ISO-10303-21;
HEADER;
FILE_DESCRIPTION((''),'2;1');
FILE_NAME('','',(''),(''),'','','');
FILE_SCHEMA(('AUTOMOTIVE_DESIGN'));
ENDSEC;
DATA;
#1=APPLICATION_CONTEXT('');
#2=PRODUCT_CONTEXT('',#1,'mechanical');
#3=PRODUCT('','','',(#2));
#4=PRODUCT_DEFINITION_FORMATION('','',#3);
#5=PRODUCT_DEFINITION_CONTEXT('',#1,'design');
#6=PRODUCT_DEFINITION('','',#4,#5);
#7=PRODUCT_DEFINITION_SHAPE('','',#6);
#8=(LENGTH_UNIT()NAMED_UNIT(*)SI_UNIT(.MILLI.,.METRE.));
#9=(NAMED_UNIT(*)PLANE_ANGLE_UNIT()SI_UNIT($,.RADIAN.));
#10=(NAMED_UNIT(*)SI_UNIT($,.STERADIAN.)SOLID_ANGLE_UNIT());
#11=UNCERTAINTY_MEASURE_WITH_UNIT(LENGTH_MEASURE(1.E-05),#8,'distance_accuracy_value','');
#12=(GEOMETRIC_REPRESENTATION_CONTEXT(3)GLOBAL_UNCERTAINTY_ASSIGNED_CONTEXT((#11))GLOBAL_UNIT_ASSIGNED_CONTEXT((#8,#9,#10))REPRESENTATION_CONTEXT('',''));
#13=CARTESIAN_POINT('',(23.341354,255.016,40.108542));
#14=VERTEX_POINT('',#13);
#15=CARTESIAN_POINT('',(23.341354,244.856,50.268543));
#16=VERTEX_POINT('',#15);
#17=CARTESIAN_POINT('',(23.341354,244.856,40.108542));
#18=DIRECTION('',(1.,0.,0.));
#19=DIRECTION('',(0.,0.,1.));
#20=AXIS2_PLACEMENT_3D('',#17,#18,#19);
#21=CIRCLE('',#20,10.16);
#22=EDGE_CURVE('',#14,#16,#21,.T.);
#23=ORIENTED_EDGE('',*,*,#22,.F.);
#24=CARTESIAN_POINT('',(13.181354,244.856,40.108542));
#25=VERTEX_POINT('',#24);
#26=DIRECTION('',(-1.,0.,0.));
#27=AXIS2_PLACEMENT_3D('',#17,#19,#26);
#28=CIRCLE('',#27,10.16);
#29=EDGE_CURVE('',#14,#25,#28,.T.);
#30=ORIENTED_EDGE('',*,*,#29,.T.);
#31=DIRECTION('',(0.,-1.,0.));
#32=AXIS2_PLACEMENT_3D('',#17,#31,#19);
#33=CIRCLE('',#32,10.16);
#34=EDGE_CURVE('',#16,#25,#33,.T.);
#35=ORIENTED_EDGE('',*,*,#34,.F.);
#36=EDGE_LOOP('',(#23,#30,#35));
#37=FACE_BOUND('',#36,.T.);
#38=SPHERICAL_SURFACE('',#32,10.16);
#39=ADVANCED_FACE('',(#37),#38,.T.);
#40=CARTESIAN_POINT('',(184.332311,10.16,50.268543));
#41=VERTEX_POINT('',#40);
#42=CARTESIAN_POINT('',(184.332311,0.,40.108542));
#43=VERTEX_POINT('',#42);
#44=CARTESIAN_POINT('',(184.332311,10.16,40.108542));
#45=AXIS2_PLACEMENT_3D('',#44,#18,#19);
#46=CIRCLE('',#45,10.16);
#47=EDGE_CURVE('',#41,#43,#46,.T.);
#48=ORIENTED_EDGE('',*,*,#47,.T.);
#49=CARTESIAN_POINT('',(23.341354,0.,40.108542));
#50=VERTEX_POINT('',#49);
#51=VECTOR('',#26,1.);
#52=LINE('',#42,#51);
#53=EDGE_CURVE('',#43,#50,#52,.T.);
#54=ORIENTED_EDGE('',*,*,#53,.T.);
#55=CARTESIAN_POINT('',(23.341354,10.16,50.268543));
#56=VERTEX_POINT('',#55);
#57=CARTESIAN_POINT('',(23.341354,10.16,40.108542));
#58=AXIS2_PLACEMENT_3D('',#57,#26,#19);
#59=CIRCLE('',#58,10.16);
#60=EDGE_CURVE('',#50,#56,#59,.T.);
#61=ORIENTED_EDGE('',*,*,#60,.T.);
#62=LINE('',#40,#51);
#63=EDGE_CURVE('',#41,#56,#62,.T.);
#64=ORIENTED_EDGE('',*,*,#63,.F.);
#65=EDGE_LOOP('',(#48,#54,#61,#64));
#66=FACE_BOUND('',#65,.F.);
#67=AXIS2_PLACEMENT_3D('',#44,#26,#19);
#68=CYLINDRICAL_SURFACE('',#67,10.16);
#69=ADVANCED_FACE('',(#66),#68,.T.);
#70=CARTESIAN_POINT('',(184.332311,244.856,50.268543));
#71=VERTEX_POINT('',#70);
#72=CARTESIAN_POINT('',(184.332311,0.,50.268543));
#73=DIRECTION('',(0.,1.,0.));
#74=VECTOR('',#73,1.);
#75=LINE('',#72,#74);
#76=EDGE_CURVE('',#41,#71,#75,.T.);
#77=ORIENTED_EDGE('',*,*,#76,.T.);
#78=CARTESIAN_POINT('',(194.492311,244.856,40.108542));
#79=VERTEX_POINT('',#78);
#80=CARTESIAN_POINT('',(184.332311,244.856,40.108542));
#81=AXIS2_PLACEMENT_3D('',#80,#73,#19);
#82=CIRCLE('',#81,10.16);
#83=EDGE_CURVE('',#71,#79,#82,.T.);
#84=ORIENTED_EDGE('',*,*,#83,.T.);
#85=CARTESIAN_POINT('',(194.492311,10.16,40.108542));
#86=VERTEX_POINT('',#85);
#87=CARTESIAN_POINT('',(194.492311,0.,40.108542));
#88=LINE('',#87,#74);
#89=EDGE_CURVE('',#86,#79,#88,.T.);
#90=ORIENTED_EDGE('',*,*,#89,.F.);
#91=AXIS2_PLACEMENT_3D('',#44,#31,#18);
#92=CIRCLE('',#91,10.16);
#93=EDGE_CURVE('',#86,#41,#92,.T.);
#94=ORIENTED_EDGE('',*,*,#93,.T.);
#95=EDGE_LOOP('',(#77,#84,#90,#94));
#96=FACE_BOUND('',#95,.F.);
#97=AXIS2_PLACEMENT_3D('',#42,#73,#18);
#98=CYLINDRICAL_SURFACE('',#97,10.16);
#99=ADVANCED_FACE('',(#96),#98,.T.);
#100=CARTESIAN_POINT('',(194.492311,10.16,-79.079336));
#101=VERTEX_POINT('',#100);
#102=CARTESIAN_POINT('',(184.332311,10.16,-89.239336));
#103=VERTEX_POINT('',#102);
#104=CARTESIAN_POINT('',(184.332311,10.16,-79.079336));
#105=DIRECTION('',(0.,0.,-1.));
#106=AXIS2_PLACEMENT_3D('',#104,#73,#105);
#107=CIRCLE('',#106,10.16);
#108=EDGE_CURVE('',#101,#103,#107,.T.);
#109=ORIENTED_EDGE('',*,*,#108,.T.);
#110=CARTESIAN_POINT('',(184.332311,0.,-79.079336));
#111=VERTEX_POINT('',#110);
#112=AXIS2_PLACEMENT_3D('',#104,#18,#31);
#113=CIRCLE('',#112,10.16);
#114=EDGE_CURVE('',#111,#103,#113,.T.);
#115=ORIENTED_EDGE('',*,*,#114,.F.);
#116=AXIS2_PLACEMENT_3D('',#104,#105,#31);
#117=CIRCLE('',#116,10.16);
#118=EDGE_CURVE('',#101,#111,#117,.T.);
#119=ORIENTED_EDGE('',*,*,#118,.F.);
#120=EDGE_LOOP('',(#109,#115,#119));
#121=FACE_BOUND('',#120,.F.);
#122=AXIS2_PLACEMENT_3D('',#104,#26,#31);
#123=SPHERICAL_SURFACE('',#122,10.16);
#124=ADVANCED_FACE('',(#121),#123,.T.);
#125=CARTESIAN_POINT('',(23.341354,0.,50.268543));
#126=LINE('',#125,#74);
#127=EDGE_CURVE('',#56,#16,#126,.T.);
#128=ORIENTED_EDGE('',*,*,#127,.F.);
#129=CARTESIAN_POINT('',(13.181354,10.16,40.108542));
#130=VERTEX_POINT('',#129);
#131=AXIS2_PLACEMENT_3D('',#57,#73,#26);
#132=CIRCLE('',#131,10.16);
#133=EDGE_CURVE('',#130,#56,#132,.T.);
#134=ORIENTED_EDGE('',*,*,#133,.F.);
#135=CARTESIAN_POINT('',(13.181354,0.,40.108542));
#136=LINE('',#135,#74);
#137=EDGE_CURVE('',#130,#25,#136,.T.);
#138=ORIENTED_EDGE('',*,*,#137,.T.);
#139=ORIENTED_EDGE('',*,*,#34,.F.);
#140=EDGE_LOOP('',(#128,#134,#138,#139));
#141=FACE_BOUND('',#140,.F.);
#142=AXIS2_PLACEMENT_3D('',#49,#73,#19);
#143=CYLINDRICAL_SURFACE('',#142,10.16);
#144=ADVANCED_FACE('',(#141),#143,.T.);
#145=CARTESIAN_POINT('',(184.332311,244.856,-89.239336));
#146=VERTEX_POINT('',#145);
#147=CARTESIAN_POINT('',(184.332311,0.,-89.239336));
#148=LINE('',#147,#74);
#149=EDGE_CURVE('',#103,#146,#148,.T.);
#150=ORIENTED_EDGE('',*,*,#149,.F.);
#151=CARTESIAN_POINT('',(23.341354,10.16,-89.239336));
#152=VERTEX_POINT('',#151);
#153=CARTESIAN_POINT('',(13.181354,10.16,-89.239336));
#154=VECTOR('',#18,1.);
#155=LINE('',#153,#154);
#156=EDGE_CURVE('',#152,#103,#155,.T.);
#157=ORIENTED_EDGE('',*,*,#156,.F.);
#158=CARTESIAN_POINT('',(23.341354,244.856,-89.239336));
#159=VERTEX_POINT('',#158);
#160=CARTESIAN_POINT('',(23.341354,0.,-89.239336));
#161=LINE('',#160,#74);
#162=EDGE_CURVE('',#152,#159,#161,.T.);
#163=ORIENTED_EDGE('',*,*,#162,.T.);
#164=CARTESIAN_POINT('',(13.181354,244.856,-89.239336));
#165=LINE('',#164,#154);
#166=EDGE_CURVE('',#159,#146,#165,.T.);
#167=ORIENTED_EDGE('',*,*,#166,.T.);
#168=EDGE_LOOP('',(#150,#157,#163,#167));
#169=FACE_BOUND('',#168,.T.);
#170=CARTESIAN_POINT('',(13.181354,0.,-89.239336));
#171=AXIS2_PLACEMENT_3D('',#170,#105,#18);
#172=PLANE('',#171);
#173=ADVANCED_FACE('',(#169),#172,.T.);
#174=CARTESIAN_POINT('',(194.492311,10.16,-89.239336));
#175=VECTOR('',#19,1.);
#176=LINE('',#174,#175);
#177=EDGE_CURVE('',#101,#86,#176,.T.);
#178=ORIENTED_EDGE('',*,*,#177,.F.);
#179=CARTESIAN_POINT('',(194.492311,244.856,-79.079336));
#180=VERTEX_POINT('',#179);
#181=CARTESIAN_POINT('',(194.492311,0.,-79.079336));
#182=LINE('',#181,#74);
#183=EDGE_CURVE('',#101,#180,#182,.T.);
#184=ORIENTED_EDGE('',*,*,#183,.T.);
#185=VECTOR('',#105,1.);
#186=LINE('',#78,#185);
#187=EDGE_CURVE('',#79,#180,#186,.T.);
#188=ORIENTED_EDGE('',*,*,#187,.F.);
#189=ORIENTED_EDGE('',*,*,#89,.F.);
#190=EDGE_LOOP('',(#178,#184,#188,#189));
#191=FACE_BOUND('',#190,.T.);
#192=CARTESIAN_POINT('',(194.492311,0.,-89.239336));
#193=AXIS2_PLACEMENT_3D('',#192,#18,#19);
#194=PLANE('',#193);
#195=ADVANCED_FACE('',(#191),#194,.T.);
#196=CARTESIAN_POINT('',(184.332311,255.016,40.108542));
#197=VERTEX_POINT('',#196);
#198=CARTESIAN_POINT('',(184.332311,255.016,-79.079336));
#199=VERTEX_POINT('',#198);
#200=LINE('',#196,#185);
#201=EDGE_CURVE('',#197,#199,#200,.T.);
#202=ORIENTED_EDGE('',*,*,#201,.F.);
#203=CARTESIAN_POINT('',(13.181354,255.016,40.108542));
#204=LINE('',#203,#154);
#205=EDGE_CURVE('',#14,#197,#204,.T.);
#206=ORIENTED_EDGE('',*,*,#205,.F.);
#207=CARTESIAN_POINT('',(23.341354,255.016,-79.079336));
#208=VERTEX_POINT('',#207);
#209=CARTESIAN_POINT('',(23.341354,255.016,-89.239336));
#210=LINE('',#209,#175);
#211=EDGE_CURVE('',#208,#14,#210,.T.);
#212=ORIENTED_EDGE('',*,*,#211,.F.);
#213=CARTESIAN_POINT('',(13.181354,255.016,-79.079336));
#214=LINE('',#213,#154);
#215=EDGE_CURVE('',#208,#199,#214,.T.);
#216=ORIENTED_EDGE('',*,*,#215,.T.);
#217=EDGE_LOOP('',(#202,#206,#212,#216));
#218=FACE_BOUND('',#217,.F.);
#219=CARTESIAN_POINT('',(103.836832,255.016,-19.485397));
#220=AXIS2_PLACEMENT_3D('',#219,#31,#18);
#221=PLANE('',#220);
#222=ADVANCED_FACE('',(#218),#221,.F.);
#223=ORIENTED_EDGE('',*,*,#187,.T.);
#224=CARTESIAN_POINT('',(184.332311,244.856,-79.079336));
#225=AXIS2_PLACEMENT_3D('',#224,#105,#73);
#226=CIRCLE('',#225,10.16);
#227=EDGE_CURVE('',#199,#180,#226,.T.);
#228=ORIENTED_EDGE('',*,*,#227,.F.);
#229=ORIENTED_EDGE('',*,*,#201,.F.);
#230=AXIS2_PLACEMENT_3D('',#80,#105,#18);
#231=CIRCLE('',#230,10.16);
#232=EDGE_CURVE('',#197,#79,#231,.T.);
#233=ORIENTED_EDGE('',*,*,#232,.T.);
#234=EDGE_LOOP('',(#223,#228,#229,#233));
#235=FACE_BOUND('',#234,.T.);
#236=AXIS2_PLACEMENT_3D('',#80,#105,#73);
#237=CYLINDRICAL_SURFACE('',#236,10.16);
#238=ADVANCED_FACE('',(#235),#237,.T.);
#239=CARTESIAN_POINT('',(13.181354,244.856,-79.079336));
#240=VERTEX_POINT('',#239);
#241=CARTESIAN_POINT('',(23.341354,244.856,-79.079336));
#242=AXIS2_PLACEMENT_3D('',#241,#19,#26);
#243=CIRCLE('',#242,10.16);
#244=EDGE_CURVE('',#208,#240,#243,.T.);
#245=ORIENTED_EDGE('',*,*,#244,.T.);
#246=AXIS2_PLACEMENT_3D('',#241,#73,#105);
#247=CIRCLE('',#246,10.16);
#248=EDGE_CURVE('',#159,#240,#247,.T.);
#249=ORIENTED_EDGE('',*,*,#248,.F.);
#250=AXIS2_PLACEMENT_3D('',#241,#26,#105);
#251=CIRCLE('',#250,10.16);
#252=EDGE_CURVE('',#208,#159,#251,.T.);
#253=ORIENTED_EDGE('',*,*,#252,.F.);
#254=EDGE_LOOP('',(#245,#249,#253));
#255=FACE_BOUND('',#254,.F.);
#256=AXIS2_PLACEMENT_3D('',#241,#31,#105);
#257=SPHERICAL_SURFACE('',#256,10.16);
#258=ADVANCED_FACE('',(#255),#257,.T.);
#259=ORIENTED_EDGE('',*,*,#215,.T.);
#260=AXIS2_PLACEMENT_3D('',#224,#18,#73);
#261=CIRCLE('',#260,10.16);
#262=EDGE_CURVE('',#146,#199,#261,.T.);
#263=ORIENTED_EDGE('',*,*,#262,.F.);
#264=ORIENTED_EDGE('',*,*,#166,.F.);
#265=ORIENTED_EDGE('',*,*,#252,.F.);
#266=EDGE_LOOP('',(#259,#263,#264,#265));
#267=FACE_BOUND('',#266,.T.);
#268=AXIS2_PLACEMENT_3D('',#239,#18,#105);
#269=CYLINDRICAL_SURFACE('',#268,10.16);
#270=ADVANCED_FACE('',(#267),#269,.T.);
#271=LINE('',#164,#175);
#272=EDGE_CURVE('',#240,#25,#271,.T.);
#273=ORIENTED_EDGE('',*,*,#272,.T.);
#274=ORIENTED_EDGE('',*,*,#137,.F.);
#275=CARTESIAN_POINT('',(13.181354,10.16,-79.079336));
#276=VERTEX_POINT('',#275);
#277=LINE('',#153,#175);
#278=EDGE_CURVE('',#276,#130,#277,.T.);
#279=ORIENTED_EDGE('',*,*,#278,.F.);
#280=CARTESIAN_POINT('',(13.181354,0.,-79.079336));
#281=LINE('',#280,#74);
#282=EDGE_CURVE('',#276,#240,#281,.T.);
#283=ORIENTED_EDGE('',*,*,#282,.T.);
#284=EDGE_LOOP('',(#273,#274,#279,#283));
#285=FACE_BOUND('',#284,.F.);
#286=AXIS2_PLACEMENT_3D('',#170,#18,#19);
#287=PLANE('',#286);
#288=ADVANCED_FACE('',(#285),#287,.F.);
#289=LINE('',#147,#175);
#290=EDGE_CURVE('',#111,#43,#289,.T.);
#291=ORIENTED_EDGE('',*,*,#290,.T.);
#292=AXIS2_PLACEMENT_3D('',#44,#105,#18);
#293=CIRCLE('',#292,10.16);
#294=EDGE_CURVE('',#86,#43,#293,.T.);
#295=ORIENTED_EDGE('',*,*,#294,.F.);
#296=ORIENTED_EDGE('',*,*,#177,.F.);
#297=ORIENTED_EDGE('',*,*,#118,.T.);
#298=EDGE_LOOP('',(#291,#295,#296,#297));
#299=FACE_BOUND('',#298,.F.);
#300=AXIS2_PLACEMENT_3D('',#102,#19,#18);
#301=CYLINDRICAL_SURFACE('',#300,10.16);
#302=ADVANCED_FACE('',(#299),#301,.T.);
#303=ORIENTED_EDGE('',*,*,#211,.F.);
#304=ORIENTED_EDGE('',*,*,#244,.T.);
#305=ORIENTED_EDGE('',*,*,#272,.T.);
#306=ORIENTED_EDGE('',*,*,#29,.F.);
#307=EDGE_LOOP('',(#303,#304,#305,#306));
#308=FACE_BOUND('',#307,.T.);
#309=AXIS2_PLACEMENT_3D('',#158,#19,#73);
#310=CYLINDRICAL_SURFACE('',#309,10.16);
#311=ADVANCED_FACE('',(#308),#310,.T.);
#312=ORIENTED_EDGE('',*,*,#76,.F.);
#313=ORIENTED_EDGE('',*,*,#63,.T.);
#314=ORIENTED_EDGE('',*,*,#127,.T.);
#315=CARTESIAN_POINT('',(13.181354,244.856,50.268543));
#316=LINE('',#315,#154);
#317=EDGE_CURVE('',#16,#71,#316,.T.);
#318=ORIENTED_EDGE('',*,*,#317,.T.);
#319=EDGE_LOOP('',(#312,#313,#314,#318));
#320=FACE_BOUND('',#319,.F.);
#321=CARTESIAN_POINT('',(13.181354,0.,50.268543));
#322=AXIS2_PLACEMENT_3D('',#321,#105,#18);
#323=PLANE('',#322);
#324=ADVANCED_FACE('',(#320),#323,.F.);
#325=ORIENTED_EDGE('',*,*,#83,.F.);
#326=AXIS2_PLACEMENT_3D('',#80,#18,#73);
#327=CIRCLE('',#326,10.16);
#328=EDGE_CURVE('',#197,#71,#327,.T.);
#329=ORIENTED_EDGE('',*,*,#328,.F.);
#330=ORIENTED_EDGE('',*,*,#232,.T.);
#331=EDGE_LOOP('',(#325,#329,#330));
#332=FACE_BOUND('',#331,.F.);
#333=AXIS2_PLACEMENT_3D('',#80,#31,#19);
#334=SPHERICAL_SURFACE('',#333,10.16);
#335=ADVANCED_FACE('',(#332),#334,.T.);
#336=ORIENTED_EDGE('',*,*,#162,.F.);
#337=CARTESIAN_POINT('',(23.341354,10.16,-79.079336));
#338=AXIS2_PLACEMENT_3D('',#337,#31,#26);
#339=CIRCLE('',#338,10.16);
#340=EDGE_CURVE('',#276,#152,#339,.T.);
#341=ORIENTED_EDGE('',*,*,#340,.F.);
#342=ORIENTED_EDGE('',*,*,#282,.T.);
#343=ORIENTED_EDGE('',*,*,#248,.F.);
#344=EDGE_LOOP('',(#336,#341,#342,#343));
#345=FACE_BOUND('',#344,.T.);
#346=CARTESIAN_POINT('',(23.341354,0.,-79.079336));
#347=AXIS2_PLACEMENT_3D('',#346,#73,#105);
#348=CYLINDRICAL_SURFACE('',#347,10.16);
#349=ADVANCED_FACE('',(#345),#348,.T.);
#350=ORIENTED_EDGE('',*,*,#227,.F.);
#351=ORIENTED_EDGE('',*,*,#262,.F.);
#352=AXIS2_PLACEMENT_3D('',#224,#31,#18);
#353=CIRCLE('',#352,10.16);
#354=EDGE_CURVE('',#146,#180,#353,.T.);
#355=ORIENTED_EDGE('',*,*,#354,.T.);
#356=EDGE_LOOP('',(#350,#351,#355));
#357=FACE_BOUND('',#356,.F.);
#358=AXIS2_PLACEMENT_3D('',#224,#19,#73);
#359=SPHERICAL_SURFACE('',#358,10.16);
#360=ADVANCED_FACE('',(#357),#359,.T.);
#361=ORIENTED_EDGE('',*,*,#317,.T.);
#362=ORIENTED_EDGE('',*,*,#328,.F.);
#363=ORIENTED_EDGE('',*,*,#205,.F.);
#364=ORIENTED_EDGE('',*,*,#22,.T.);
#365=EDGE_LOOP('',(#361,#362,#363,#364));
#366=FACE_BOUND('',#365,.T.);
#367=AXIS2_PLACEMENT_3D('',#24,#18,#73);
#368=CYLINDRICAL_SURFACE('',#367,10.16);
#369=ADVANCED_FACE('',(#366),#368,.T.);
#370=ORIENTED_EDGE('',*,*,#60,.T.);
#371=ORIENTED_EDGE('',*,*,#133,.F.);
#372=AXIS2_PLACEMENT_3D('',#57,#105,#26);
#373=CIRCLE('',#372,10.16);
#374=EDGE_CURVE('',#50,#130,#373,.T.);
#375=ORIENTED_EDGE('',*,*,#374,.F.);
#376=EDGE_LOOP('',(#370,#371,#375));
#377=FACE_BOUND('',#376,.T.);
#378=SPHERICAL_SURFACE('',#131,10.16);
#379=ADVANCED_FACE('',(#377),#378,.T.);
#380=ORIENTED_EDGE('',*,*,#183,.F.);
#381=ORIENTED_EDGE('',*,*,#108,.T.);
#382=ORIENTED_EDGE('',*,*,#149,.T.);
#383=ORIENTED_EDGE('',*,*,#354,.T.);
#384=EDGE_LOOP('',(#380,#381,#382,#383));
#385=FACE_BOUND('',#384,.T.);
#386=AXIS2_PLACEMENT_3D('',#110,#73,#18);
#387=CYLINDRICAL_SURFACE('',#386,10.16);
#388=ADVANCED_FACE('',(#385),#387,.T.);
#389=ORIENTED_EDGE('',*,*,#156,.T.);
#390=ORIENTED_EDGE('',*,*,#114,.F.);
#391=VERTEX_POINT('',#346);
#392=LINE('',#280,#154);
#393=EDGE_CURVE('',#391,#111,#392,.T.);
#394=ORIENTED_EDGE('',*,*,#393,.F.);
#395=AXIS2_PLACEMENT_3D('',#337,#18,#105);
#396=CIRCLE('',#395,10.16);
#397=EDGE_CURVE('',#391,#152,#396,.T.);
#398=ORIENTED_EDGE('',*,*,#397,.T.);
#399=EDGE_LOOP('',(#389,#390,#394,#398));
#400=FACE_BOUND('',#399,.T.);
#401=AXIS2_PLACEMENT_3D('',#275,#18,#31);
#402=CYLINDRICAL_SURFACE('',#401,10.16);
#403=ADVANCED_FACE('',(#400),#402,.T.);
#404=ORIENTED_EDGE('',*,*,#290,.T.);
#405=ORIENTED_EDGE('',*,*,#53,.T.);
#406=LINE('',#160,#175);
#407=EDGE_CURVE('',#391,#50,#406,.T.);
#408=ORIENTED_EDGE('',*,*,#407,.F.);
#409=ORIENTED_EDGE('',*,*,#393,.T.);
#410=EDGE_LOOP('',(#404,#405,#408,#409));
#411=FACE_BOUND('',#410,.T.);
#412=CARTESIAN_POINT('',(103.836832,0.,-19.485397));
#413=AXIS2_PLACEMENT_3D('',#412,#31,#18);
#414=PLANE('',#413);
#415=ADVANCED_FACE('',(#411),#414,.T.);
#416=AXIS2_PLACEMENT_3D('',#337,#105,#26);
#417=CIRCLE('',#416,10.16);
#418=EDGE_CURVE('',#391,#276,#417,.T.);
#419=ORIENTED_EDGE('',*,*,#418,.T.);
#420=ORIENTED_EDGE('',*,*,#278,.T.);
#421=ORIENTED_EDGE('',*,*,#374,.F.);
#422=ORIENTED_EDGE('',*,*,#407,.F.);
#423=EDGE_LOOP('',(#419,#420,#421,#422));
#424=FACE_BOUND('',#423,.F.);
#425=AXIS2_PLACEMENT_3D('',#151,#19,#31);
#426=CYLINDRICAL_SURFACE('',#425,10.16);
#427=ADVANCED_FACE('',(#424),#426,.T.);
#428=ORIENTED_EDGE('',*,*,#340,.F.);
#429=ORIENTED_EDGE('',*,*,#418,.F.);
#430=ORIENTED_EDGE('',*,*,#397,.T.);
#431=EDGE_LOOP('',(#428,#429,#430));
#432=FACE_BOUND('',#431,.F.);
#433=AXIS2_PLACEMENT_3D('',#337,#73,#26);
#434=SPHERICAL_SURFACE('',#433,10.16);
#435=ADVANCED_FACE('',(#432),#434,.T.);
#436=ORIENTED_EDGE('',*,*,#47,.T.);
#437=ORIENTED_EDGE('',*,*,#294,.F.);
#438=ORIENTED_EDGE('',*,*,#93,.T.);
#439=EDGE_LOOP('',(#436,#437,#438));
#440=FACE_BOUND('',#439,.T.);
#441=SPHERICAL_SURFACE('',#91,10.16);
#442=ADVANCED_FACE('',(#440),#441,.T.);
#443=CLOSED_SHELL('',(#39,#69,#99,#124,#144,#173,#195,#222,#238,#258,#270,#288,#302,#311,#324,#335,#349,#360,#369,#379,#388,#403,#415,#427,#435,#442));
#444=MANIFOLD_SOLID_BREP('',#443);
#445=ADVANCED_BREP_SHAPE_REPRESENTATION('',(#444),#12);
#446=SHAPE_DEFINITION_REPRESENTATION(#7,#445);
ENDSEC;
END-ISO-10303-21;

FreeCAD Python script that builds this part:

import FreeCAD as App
import Part
import Sketcher

V = App.Vector
Q = App.Units.Quantity


def edges_at(feature, points):
    """Names of the edges that pass closest to the given points."""
    edges = feature.Shape.Edges
    near = lambda p: min(range(len(edges)), key=lambda i: edges[i].distToShape(Part.Vertex(*p))[0])
    return sorted({f"Edge{near(p) + 1}" for p in points})

doc = App.newDocument("Part")
body = doc.addObject("PartDesign::Body", "Body")

# Sketch on XZ plane
sketch1 = doc.addObject("Sketcher::SketchObject", "Sketch")
body.addObject(sketch1)
sketch1.AttachmentSupport = (doc.XZ_Plane, [""])
sketch1.MapMode = "FlatFace"
sketch1.addGeometry(Part.LineSegment(V(13, 50, 0), V(13, -89, 0)), False)
sketch1.addGeometry(Part.LineSegment(V(13, -89, 0), V(194, -89, 0)), False)
sketch1.addGeometry(Part.LineSegment(V(194, -89, 0), V(194, 50, 0)), False)
sketch1.addGeometry(Part.LineSegment(V(194, 50, 0), V(13, 50, 0)), False)
sketch1.addConstraint(Sketcher.Constraint("Coincident", 0, 2, 1, 1))
sketch1.addConstraint(Sketcher.Constraint("Coincident", 1, 2, 2, 1))
sketch1.addConstraint(Sketcher.Constraint("Coincident", 2, 2, 3, 1))
sketch1.addConstraint(Sketcher.Constraint("Coincident", 3, 2, 0, 1))
sketch1.addConstraint(Sketcher.Constraint("Vertical", 0))
sketch1.addConstraint(Sketcher.Constraint("Horizontal", 1))
sketch1.addConstraint(Sketcher.Constraint("Vertical", 2))
sketch1.addConstraint(Sketcher.Constraint("Horizontal", 3))
sketch1.addConstraint(Sketcher.Constraint("DistanceY", 0, 2, 0, 1, 139.507879))
sketch1.addConstraint(Sketcher.Constraint("DistanceX", 1, 1, 1, 2, 181.310957))
sketch1.addConstraint(Sketcher.Constraint("DistanceX", -1, 1, 1, 2, 194.492311))
sketch1.addConstraint(Sketcher.Constraint("DistanceY", 0, 2, -1, 1, 89.239336))
pad1 = doc.addObject("PartDesign::Pad", "Pad")
body.addObject(pad1)
pad1.Profile = sketch1
pad1.Length = Q("10.04 in")
pad1.Reversed = True
doc.recompute()

fillet = doc.addObject("PartDesign::Fillet", "Fillet")
body.addObject(fillet)
fillet.Base = (pad1, edges_at(pad1, [(194.492, 127.508, 50.269)]))
fillet.Radius = Q("0.4 in")
doc.recompute()

fillet2 = doc.addObject("PartDesign::Fillet", "Fillet001")
body.addObject(fillet2)
fillet2.Base = (fillet, ["Edge1"])
fillet2.UseAllEdges = True
fillet2.Radius = Q("0.4 in")

doc.recompute()
